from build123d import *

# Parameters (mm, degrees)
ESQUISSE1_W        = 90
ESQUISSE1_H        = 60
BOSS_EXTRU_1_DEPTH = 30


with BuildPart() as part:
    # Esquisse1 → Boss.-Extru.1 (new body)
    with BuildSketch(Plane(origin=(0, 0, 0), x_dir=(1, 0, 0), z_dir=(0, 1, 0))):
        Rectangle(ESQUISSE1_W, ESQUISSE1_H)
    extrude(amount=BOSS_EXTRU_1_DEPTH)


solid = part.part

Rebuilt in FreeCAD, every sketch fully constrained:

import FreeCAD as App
import Part
import Sketcher

V = App.Vector
Q = App.Units.Quantity


def add_polygon(sketch, points):
    """Adds a closed chain of lines whose ends are joined by coincident constraints."""
    first, n = sketch.GeometryCount, len(points)
    for a, b in zip(points, points[1:] + points[:1]):
        sketch.addGeometry(Part.LineSegment(App.Vector(*a, 0), App.Vector(*b, 0)), False)
    for i in range(n):
        sketch.addConstraint(Sketcher.Constraint("Coincident", first + i, 2, first + (i + 1) % n, 1))

doc = App.newDocument("Part")
body = doc.addObject("PartDesign::Body", "Body")

# Sketch on XZ plane
sketch1 = body.newObject("Sketcher::SketchObject", "Sketch")
sketch1.AttachmentSupport = (doc.getObject("XZ_Plane"), [""])
sketch1.MapMode = "FlatFace"
add_polygon(sketch1, [(-45, -30), (-45, 30), (45, 30), (45, -30)])  # lines 0-3
sketch1.addConstraint([
    Sketcher.Constraint("Vertical", 0),
    Sketcher.Constraint("Horizontal", 1),
    Sketcher.Constraint("Vertical", 2),
    Sketcher.Constraint("Horizontal", 3),
    Sketcher.Constraint("Symmetric", 0, 2, 2, 2, -1, 1),
    Sketcher.Constraint("DistanceX", 1, 1, 1, 2, Q("90 mm")),
    Sketcher.Constraint("DistanceY", 0, 1, 0, 2, Q("60 mm")),
])
pad1 = body.newObject("PartDesign::Pad", "Pad")
pad1.Profile = sketch1
pad1.Length = 30
pad1.Reversed = True

doc.recompute()
